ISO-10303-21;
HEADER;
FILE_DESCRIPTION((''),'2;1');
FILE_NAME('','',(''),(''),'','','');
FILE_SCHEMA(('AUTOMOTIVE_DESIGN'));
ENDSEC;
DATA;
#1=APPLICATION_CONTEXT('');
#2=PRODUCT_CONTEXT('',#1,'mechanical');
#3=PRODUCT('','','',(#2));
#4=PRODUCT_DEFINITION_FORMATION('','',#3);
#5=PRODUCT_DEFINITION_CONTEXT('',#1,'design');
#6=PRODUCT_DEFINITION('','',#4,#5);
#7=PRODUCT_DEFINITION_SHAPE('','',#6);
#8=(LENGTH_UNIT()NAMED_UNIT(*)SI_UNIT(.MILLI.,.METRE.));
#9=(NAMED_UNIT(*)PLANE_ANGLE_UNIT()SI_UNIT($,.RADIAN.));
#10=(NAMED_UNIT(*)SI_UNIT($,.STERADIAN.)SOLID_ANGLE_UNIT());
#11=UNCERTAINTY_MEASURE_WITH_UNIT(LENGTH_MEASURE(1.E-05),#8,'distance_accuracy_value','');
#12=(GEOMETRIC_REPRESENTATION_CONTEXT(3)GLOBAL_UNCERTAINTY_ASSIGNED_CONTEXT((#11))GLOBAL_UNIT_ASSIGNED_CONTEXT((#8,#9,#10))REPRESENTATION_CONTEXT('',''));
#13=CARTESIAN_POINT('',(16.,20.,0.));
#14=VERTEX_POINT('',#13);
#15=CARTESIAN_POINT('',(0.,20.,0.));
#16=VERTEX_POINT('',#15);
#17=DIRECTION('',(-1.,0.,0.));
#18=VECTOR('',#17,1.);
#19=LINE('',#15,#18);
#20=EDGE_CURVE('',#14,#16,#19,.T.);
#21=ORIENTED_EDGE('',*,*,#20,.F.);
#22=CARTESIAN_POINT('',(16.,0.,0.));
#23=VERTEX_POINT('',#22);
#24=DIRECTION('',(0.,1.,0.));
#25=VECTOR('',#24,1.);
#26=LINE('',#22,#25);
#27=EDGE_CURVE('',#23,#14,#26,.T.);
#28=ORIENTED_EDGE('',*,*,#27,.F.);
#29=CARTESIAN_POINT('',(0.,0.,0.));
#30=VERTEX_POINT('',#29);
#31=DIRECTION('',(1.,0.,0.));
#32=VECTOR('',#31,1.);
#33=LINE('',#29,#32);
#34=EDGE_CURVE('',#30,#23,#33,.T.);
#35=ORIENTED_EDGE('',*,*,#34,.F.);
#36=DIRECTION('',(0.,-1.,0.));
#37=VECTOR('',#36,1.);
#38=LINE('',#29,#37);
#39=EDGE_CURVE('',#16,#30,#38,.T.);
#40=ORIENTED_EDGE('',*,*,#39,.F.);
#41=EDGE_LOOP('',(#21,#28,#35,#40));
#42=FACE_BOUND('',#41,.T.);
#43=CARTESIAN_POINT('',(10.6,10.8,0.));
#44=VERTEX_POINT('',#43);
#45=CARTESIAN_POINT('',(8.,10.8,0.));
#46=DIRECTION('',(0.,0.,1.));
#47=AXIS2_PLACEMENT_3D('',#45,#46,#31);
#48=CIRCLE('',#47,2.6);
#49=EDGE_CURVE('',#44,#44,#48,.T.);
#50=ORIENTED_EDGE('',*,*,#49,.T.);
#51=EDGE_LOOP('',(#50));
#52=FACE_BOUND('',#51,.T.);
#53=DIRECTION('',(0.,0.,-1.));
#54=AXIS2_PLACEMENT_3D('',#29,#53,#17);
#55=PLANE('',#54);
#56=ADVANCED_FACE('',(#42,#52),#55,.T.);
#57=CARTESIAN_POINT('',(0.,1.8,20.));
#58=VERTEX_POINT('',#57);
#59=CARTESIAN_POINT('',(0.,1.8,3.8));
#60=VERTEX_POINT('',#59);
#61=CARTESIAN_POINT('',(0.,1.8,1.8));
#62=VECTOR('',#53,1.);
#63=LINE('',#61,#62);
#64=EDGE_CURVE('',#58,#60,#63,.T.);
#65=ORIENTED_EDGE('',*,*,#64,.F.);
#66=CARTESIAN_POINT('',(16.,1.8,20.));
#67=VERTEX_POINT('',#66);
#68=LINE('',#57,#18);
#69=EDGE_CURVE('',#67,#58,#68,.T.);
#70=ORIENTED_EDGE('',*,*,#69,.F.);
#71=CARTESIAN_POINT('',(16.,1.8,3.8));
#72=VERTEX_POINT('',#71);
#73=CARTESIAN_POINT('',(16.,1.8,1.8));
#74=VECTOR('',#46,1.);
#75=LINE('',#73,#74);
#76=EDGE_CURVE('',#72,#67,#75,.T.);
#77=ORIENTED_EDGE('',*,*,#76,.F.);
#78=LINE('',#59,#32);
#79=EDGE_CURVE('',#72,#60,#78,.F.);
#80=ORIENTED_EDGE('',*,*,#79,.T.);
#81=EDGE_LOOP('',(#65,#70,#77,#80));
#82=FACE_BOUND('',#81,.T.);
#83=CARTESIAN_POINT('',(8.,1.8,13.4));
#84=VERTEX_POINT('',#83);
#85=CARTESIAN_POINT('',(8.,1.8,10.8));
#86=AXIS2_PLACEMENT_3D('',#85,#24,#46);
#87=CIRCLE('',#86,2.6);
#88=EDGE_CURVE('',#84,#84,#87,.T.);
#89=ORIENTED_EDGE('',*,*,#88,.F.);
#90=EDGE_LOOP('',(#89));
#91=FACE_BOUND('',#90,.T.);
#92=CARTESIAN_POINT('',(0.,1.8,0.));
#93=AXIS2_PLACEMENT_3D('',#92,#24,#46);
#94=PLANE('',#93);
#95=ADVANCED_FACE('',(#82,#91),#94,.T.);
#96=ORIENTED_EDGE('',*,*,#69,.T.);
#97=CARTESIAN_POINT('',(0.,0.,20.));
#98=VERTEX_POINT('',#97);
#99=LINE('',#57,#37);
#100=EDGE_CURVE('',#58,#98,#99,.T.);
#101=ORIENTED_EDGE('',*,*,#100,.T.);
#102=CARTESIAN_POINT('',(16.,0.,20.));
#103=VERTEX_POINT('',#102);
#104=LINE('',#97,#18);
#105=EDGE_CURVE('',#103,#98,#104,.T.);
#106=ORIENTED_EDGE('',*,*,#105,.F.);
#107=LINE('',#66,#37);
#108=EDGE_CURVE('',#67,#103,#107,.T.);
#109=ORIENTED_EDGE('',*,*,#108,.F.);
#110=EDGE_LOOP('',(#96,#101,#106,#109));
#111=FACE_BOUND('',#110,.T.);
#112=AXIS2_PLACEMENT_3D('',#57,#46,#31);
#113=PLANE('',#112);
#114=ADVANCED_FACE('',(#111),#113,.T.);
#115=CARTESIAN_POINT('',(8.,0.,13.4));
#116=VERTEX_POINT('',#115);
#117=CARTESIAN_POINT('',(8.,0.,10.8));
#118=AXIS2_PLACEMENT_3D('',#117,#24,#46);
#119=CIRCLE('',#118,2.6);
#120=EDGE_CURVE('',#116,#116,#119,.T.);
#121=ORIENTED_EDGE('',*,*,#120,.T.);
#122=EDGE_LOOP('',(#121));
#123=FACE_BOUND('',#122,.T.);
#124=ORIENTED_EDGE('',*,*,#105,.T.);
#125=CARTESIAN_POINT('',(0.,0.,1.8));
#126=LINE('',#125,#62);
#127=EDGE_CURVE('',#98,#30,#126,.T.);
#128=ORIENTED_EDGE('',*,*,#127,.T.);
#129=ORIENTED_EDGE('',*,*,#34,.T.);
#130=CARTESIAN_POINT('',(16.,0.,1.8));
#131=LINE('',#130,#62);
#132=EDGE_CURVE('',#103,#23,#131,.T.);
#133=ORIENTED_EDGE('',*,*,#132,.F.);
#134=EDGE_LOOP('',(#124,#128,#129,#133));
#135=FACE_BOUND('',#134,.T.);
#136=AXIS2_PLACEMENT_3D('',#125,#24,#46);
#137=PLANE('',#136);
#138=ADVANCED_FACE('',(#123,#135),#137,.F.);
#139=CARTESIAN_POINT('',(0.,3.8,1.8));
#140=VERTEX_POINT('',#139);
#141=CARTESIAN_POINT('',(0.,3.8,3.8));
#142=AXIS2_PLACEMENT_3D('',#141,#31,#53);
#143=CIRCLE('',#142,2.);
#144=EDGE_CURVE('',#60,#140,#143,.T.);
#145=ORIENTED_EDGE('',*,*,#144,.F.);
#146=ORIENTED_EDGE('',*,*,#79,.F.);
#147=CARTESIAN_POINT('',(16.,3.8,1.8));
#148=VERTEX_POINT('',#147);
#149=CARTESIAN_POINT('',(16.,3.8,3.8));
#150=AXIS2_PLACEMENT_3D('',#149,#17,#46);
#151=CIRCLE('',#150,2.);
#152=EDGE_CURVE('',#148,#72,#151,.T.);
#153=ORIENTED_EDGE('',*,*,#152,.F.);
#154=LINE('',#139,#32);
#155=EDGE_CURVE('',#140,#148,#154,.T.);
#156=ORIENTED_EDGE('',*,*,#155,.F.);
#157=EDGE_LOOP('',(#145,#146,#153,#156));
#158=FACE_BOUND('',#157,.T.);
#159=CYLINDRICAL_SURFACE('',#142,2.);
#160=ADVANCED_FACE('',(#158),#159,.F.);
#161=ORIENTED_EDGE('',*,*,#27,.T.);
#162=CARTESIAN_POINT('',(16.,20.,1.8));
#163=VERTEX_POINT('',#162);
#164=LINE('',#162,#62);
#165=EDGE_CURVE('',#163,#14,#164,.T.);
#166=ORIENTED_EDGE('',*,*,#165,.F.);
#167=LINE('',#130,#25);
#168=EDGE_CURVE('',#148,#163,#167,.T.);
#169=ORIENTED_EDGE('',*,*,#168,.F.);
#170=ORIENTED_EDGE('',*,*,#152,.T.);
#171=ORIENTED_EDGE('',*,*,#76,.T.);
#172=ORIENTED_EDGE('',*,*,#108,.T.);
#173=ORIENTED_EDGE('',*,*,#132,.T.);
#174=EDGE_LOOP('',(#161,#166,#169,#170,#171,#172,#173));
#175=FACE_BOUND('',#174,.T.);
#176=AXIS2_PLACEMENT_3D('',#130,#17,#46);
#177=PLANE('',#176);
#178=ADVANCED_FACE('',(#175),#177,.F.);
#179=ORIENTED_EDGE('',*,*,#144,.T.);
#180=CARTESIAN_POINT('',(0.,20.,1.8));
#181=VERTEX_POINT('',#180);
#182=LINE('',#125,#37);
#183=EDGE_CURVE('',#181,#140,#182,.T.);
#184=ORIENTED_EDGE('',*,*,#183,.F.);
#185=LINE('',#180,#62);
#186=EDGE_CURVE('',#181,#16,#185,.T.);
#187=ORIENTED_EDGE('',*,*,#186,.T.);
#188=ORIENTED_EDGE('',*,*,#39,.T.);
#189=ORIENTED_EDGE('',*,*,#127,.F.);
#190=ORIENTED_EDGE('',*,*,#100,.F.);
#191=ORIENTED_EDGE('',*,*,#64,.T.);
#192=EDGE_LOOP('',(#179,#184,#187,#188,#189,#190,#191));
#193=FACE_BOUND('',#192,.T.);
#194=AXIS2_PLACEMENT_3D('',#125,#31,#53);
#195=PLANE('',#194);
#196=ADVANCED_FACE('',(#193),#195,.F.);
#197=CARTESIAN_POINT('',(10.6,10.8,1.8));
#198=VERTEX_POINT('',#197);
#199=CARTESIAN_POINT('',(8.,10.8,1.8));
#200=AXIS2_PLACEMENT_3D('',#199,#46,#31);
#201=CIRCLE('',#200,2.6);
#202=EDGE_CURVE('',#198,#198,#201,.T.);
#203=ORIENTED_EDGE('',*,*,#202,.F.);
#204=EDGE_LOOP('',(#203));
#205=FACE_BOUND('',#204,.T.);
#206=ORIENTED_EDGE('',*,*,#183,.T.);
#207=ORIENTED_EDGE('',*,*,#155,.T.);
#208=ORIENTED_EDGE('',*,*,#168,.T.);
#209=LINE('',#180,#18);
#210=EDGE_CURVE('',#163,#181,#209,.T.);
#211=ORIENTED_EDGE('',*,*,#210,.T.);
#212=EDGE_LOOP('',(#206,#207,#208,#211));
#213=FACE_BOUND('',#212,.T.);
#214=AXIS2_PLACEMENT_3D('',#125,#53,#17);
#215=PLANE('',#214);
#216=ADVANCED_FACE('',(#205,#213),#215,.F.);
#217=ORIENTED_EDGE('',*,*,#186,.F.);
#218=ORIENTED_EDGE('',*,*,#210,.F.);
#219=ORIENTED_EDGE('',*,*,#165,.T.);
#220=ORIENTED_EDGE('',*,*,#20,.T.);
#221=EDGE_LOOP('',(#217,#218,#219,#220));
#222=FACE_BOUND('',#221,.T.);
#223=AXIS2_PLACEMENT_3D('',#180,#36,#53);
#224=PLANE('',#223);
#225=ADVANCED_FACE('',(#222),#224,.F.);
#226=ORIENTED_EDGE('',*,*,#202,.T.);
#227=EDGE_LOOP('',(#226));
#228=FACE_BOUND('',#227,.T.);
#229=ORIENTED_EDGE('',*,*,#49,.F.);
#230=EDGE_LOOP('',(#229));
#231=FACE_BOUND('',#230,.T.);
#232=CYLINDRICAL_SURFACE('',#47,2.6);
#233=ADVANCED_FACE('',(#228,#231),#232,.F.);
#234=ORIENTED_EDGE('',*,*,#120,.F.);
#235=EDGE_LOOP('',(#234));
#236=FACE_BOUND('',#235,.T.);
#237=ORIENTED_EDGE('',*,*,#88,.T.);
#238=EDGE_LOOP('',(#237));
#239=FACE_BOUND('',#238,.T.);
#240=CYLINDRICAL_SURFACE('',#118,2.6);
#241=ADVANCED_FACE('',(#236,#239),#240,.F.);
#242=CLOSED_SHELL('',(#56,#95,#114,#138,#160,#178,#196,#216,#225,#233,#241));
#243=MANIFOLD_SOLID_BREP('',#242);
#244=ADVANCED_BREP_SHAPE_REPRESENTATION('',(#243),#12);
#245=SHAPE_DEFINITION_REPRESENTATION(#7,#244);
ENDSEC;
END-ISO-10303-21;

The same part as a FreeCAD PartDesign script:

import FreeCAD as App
import Part
import Sketcher

V = App.Vector
Q = App.Units.Quantity


def edges_at(feature, points):
    """Names of the edges that pass closest to the given points."""
    edges = feature.Shape.Edges
    near = lambda p: min(range(len(edges)), key=lambda i: edges[i].distToShape(Part.Vertex(*p))[0])
    return sorted({f"Edge{near(p) + 1}" for p in points})


def add_polygon(sketch, points):
    """Adds a closed chain of lines whose ends are joined by coincident constraints."""
    first, n = sketch.GeometryCount, len(points)
    for a, b in zip(points, points[1:] + points[:1]):
        sketch.addGeometry(Part.LineSegment(App.Vector(*a, 0), App.Vector(*b, 0)), False)
    for i in range(n):
        sketch.addConstraint(Sketcher.Constraint("Coincident", first + i, 2, first + (i + 1) % n, 1))

doc = App.newDocument("Part")
body = doc.addObject("PartDesign::Body", "Body")

# Sketch on XY plane
sketch1 = body.newObject("Sketcher::SketchObject", "Sketch")
sketch1.AttachmentSupport = (doc.getObject("XY_Plane"), [""])
sketch1.MapMode = "FlatFace"
add_polygon(sketch1, [(0, 20), (0, 0), (16, 0), (16, 20)])  # lines 0-3
sketch1.addConstraint([
    Sketcher.Constraint("Vertical", 0),
    Sketcher.Constraint("Horizontal", 1),
    Sketcher.Constraint("Vertical", 2),
    Sketcher.Constraint("Horizontal", 3),
    Sketcher.Constraint("Coincident", 0, 2, -1, 1),
    Sketcher.Constraint("DistanceX", 1, 1, 1, 2, Q("16 mm")),
    Sketcher.Constraint("DistanceY", 0, 2, 0, 1, Q("20 mm")),
])
pad1 = body.newObject("PartDesign::Pad", "Pad")
pad1.Profile = sketch1
pad1.Length = 1.8

# Sketch on XZ plane
sketch2 = body.newObject("Sketcher::SketchObject", "Sketch001")
sketch2.AttachmentSupport = (doc.getObject("XZ_Plane"), [""])
sketch2.MapMode = "FlatFace"
add_polygon(sketch2, [(0, 20), (0, 1.8), (16, 1.8), (16, 20)])  # lines 0-3
sketch2.addConstraint([
    Sketcher.Constraint("Vertical", 0),
    Sketcher.Constraint("Horizontal", 1),
    Sketcher.Constraint("Vertical", 2),
    Sketcher.Constraint("Horizontal", 3),
    Sketcher.Constraint("PointOnObject", 0, 2, -2),
    Sketcher.Constraint("DistanceX", 1, 1, 1, 2, Q("16 mm")),
    Sketcher.Constraint("DistanceY", 0, 2, 0, 1, Q("18.2 mm")),
    Sketcher.Constraint("DistanceY", -1, 1, 2, 2, Q("20 mm")),
])
pad2 = body.newObject("PartDesign::Pad", "Pad001")
pad2.Profile = sketch2
pad2.Length = 1.8
pad2.Reversed = True

# Sketch on XY plane
sketch3 = body.newObject("Sketcher::SketchObject", "Sketch002")
sketch3.AttachmentSupport = (doc.getObject("XY_Plane"), [""])
sketch3.MapMode = "FlatFace"
sketch3.AttachmentOffset = App.Placement(V(0, 0, 1.8), App.Rotation())
sketch3.addGeometry(Part.Circle(V(8, 10.8, 0), V(0, 0, 1), 2.6), False)
sketch3.addConstraint([
    Sketcher.Constraint("Diameter", 0, Q("5.2 mm")),
    Sketcher.Constraint("DistanceX", -1, 1, 0, 3, Q("8 mm")),
    Sketcher.Constraint("DistanceY", -1, 1, 0, 3, Q("10.8 mm")),
])
pocket1 = body.newObject("PartDesign::Pocket", "Pocket")
pocket1.Profile = sketch3
pocket1.Length = 1.8

# Sketch on XZ plane
sketch4 = body.newObject("Sketcher::SketchObject", "Sketch003")
sketch4.AttachmentSupport = (doc.getObject("XZ_Plane"), [""])
sketch4.MapMode = "FlatFace"
sketch4.AttachmentOffset = App.Placement(V(0, 0, -1.8), App.Rotation())
sketch4.addGeometry(Part.Circle(V(8, 10.8, 0), V(0, 0, 1), 2.6), False)
sketch4.addConstraint([
    Sketcher.Constraint("Diameter", 0, Q("5.2 mm")),
    Sketcher.Constraint("DistanceX", -1, 1, 0, 3, Q("8 mm")),
    Sketcher.Constraint("DistanceY", -1, 1, 0, 3, Q("10.8 mm")),
])
pocket2 = body.newObject("PartDesign::Pocket", "Pocket001")
pocket2.Profile = sketch4
pocket2.Length = 1.8
pocket2.Reversed = True
doc.recompute()

fillet = body.newObject("PartDesign::Fillet", "Fillet")
fillet.Base = (pocket2, edges_at(pocket2, [(8, 1.8, 1.8)]))
fillet.Radius = 2

doc.recompute()
